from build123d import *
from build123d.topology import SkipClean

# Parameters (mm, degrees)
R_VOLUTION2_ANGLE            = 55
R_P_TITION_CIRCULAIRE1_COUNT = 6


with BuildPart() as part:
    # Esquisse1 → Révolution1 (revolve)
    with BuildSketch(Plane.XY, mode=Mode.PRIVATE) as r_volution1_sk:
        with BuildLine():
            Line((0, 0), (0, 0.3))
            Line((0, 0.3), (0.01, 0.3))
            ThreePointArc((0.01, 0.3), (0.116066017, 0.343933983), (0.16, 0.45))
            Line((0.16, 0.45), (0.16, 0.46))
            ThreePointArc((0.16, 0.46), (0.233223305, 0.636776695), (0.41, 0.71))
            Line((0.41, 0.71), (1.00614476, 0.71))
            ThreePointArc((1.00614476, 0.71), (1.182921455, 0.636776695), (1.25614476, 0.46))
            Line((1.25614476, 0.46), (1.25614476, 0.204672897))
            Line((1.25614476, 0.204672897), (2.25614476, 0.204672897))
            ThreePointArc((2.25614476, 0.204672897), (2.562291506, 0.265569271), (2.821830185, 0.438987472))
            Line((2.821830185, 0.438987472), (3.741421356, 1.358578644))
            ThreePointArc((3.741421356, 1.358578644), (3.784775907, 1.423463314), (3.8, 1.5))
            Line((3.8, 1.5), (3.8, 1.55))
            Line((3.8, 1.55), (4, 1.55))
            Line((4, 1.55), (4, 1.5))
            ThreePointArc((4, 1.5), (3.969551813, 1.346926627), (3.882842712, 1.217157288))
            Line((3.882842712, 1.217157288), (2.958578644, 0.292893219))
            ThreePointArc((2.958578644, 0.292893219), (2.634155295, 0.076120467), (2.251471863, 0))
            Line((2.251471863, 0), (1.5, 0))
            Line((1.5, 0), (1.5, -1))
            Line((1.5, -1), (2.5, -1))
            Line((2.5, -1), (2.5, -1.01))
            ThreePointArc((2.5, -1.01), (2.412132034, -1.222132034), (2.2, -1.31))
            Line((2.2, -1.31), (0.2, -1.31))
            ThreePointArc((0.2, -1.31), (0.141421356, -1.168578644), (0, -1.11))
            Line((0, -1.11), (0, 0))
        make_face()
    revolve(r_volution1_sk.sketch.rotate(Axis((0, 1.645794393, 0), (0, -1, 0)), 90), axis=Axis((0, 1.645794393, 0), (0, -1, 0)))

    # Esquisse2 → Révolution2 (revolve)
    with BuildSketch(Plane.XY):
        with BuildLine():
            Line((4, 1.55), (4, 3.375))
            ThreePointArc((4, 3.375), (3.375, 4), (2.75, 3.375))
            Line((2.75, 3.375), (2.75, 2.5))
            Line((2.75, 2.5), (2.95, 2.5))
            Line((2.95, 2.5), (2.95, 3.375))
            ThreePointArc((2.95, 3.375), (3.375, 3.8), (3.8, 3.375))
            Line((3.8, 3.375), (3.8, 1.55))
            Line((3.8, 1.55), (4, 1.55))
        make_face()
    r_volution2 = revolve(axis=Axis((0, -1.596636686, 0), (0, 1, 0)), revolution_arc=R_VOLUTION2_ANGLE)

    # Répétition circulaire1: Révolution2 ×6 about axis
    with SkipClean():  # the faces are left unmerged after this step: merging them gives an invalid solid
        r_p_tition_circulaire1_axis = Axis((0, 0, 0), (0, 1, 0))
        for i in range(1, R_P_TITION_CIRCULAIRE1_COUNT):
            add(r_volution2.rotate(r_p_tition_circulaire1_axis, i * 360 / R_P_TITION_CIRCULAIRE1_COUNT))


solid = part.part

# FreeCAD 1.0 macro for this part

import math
import FreeCAD as App
import Part
import Sketcher
Q = App.Units.Quantity

doc = App.newDocument("Part")
body = doc.addObject("PartDesign::Body", "Body")

sketch1 = doc.addObject("Sketcher::SketchObject", "Sketch")
body.addObject(sketch1)
sketch1.AttachmentSupport = (doc.XY_Plane, [""])
sketch1.MapMode = "FlatFace"
sketch1.addGeometry([
    Part.LineSegment(App.Vector(0.01, 0.3, 0), App.Vector(0, 0.3, 0)),
    Part.LineSegment(App.Vector(0, 0.3, 0), App.Vector(0, -1.11, 0)),
    Part.ArcOfCircle(Part.Circle(App.Vector(0, -1.31, 0), App.Vector(0, 0, 1), 0.2), math.radians(0), math.radians(90)),
    Part.LineSegment(App.Vector(0.2, -1.31, 0), App.Vector(2.2, -1.31, 0)),
    Part.ArcOfCircle(Part.Circle(App.Vector(2.2, -1.01, 0), App.Vector(0, 0, 1), 0.3), math.radians(-90), math.radians(0)),
    Part.LineSegment(App.Vector(2.5, -1.01, 0), App.Vector(2.5, -1, 0)),
    Part.LineSegment(App.Vector(2.5, -1, 0), App.Vector(1.5, -1, 0)),
    Part.LineSegment(App.Vector(1.5, -1, 0), App.Vector(1.5, 0, 0)),
    Part.LineSegment(App.Vector(1.5, 0, 0), App.Vector(2.251472, 0, 0)),
    Part.ArcOfCircle(Part.Circle(App.Vector(2.251472, 1, 0), App.Vector(0, 0, 1), 1), math.radians(-90), math.radians(-45)),
    Part.LineSegment(App.Vector(2.958579, 0.292893, 0), App.Vector(3.882843, 1.217157, 0)),
    Part.ArcOfCircle(Part.Circle(App.Vector(3.6, 1.5, 0), App.Vector(0, 0, 1), 0.4), math.radians(-45), math.radians(0)),
    Part.LineSegment(App.Vector(4, 1.5, 0), App.Vector(4, 1.55, 0)),
    Part.LineSegment(App.Vector(4, 1.55, 0), App.Vector(3.8, 1.55, 0)),
    Part.LineSegment(App.Vector(3.8, 1.55, 0), App.Vector(3.8, 1.5, 0)),
    Part.ArcOfCircle(Part.Circle(App.Vector(3.6, 1.5, 0), App.Vector(0, 0, 1), 0.2), math.radians(-45.000001), math.radians(0.000001)),
    Part.LineSegment(App.Vector(3.741421, 1.358579, 0), App.Vector(2.82183, 0.438987, 0)),
    Part.ArcOfCircle(Part.Circle(App.Vector(2.256145, 1.004673, 0), App.Vector(0, 0, 1), 0.8), math.radians(-90), math.radians(-45)),
    Part.LineSegment(App.Vector(2.256145, 0.204673, 0), App.Vector(1.256145, 0.204673, 0)),
    Part.LineSegment(App.Vector(1.256145, 0.204673, 0), App.Vector(1.256145, 0.46, 0)),
    Part.ArcOfCircle(Part.Circle(App.Vector(1.006145, 0.46, 0), App.Vector(0, 0, 1), 0.25), math.radians(0), math.radians(90)),
    Part.LineSegment(App.Vector(1.006145, 0.71, 0), App.Vector(0.41, 0.71, 0)),
    Part.ArcOfCircle(Part.Circle(App.Vector(0.41, 0.46, 0), App.Vector(0, 0, 1), 0.25), math.radians(90), math.radians(180)),
    Part.LineSegment(App.Vector(0.16, 0.46, 0), App.Vector(0.16, 0.45, 0)),
    Part.ArcOfCircle(Part.Circle(App.Vector(0.01, 0.45, 0), App.Vector(0, 0, 1), 0.15), math.radians(-90), math.radians(0)),
], False)
sketch1.addConstraint([
    Sketcher.Constraint("Coincident", 0, 2, 1, 1),
    Sketcher.Constraint("Coincident", 1, 2, 2, 2),
    Sketcher.Constraint("Coincident", 2, 1, 3, 1),
    Sketcher.Constraint("Tangent", 3, 2, 4, 1),
    Sketcher.Constraint("Tangent", 4, 2, 5, 1),
    Sketcher.Constraint("Coincident", 5, 2, 6, 1),
    Sketcher.Constraint("Coincident", 6, 2, 7, 1),
    Sketcher.Constraint("Coincident", 7, 2, 8, 1),
    Sketcher.Constraint("Tangent", 8, 2, 9, 1),
    Sketcher.Constraint("Tangent", 9, 2, 10, 1),
    Sketcher.Constraint("Tangent", 10, 2, 11, 1),
    Sketcher.Constraint("Tangent", 11, 2, 12, 1),
    Sketcher.Constraint("Coincident", 12, 2, 13, 1),
    Sketcher.Constraint("Coincident", 13, 2, 14, 1),
    Sketcher.Constraint("Tangent", 14, 2, 15, 2),
    Sketcher.Constraint("Tangent", 15, 1, 16, 1),
    Sketcher.Constraint("Tangent", 16, 2, 17, 2),
    Sketcher.Constraint("Tangent", 17, 1, 18, 1),
    Sketcher.Constraint("Coincident", 18, 2, 19, 1),
    Sketcher.Constraint("Tangent", 19, 2, 20, 1),
    Sketcher.Constraint("Tangent", 20, 2, 21, 1),
    Sketcher.Constraint("Tangent", 21, 2, 22, 1),
    Sketcher.Constraint("Tangent", 22, 2, 23, 1),
    Sketcher.Constraint("Tangent", 23, 2, 24, 2),
    Sketcher.Constraint("Tangent", 24, 1, 0, 1),
    Sketcher.Constraint("Horizontal", 0),
    Sketcher.Constraint("Vertical", 1),
    Sketcher.Constraint("Horizontal", 3),
    Sketcher.Constraint("Vertical", 5),
    Sketcher.Constraint("Horizontal", 6),
    Sketcher.Constraint("Vertical", 7),
    Sketcher.Constraint("Horizontal", 8),
    Sketcher.Constraint("Vertical", 12),
    Sketcher.Constraint("Horizontal", 13),
    Sketcher.Constraint("Vertical", 14),
    Sketcher.Constraint("Horizontal", 18),
    Sketcher.Constraint("Vertical", 19),
    Sketcher.Constraint("Horizontal", 21),
    Sketcher.Constraint("Vertical", 23),
    Sketcher.Constraint("Coincident", 15, 3, 11, 3),
    Sketcher.Constraint("Equal", 2, 15),
    Sketcher.Constraint("Equal", 20, 22),
    Sketcher.Constraint("PointOnObject", 2, 3, -2),
    Sketcher.Constraint("PointOnObject", 0, 2, -2),
    Sketcher.Constraint("PointOnObject", 7, 2, -1),
    Sketcher.Constraint("Parallel", 10, 16),
    Sketcher.Constraint("Equal", 6, 18),
    Sketcher.Constraint("Equal", 0, 5),
    Sketcher.Constraint("Equal", 18, 7),
    Sketcher.Constraint("Equal", 5, 23),
    Sketcher.Constraint("Radius", 9, 1.0),
    Sketcher.Constraint("Radius", 2, 0.2),
    Sketcher.Constraint("Radius", 4, 0.3),
    Sketcher.Constraint("Radius", 11, 0.4),
    Sketcher.Constraint("Radius", 17, 0.8),
    Sketcher.Constraint("DistanceX", 3, 1, 3, 2, 2.0),
    Sketcher.Constraint("DistanceX", 6, 2, 6, 1, 1.0),
    Sketcher.Constraint("Angle", 10, Q("45 deg")),
    Sketcher.Constraint("Radius", 20, 0.25),
    Sketcher.Constraint("Radius", 24, 0.15),
    Sketcher.Constraint("DistanceX", -1, 1, 11, 2, 4.0),
    Sketcher.Constraint("DistanceX", 0, 2, 0, 1, 0.01),
    Sketcher.Constraint("DistanceY", 1, 2, 1, 1, 1.41),
    Sketcher.Constraint("DistanceY", 12, 1, 12, 2, 0.05),
    Sketcher.Constraint("DistanceY", -1, 1, 11, 3, 1.5),
    Sketcher.Constraint("DistanceY", -1, 1, 0, 2, 0.3),
    Sketcher.Constraint("Distance", 16, 1.300498),
])
revolution = doc.addObject("PartDesign::Revolution", "Revolution")
body.addObject(revolution)
revolution.Profile = sketch1
revolution.ReferenceAxis = (sketch1, ["V_Axis"])
revolution.Angle = 360

sketch2 = doc.addObject("Sketcher::SketchObject", "Sketch001")
body.addObject(sketch2)
sketch2.AttachmentSupport = (doc.XY_Plane, [""])
sketch2.MapMode = "FlatFace"
sketch2.addGeometry([
    Part.LineSegment(App.Vector(4, 1.55, 0), App.Vector(4, 3.375, 0)),
    Part.ArcOfCircle(Part.Circle(App.Vector(3.375, 3.375, 0), App.Vector(0, 0, 1), 0.625), math.radians(0), math.radians(180)),
    Part.LineSegment(App.Vector(2.75, 3.375, 0), App.Vector(2.75, 2.5, 0)),
    Part.LineSegment(App.Vector(2.75, 2.5, 0), App.Vector(2.95, 2.5, 0)),
    Part.LineSegment(App.Vector(2.95, 2.5, 0), App.Vector(2.95, 3.375, 0)),
    Part.ArcOfCircle(Part.Circle(App.Vector(3.375, 3.375, 0), App.Vector(0, 0, 1), 0.425), math.radians(0), math.radians(180)),
    Part.LineSegment(App.Vector(3.8, 3.375, 0), App.Vector(3.8, 1.55, 0)),
    Part.LineSegment(App.Vector(3.8, 1.55, 0), App.Vector(4, 1.55, 0)),
], False)
sketch2.addConstraint([
    Sketcher.Constraint("Tangent", 0, 2, 1, 1),
    Sketcher.Constraint("Tangent", 1, 2, 2, 1),
    Sketcher.Constraint("Coincident", 2, 2, 3, 1),
    Sketcher.Constraint("Coincident", 3, 2, 4, 1),
    Sketcher.Constraint("Tangent", 4, 2, 5, 2),
    Sketcher.Constraint("Tangent", 5, 1, 6, 1),
    Sketcher.Constraint("Coincident", 6, 2, 7, 1),
    Sketcher.Constraint("Coincident", 7, 2, 0, 1),
    Sketcher.Constraint("Vertical", 0),
    Sketcher.Constraint("Vertical", 2),
    Sketcher.Constraint("Horizontal", 3),
    Sketcher.Constraint("Vertical", 4),
    Sketcher.Constraint("Vertical", 6),
    Sketcher.Constraint("Horizontal", 7),
    Sketcher.Constraint("Coincident", 5, 3, 1, 3),
    Sketcher.Constraint("DistanceX", 3, 1, 3, 2, 0.2),
    Sketcher.Constraint("DistanceX", -1, 1, 0, 2, 4.0),
    Sketcher.Constraint("Radius", 1, 0.625),
    Sketcher.Constraint("DistanceY", -1, 1, 2, 2, 2.5),
    Sketcher.Constraint("DistanceY", 0, 1, 0, 2, 1.825),
    Sketcher.Constraint("DistanceY", 2, 2, 2, 1, 0.875),
])
revolution2 = doc.addObject("PartDesign::Revolution", "Revolution001")
body.addObject(revolution2)
revolution2.Profile = sketch2
revolution2.ReferenceAxis = (sketch2, ["V_Axis"])
revolution2.Angle = 55
doc.recompute()

polarpattern = doc.addObject("PartDesign::PolarPattern", "PolarPattern")
body.addObject(polarpattern)
polarpattern.Originals = [revolution2]
polarpattern.Axis = (doc.Y_Axis, [""])
polarpattern.Angle = 360
polarpattern.Occurrences = 6
body.Tip = polarpattern

doc.recompute()
